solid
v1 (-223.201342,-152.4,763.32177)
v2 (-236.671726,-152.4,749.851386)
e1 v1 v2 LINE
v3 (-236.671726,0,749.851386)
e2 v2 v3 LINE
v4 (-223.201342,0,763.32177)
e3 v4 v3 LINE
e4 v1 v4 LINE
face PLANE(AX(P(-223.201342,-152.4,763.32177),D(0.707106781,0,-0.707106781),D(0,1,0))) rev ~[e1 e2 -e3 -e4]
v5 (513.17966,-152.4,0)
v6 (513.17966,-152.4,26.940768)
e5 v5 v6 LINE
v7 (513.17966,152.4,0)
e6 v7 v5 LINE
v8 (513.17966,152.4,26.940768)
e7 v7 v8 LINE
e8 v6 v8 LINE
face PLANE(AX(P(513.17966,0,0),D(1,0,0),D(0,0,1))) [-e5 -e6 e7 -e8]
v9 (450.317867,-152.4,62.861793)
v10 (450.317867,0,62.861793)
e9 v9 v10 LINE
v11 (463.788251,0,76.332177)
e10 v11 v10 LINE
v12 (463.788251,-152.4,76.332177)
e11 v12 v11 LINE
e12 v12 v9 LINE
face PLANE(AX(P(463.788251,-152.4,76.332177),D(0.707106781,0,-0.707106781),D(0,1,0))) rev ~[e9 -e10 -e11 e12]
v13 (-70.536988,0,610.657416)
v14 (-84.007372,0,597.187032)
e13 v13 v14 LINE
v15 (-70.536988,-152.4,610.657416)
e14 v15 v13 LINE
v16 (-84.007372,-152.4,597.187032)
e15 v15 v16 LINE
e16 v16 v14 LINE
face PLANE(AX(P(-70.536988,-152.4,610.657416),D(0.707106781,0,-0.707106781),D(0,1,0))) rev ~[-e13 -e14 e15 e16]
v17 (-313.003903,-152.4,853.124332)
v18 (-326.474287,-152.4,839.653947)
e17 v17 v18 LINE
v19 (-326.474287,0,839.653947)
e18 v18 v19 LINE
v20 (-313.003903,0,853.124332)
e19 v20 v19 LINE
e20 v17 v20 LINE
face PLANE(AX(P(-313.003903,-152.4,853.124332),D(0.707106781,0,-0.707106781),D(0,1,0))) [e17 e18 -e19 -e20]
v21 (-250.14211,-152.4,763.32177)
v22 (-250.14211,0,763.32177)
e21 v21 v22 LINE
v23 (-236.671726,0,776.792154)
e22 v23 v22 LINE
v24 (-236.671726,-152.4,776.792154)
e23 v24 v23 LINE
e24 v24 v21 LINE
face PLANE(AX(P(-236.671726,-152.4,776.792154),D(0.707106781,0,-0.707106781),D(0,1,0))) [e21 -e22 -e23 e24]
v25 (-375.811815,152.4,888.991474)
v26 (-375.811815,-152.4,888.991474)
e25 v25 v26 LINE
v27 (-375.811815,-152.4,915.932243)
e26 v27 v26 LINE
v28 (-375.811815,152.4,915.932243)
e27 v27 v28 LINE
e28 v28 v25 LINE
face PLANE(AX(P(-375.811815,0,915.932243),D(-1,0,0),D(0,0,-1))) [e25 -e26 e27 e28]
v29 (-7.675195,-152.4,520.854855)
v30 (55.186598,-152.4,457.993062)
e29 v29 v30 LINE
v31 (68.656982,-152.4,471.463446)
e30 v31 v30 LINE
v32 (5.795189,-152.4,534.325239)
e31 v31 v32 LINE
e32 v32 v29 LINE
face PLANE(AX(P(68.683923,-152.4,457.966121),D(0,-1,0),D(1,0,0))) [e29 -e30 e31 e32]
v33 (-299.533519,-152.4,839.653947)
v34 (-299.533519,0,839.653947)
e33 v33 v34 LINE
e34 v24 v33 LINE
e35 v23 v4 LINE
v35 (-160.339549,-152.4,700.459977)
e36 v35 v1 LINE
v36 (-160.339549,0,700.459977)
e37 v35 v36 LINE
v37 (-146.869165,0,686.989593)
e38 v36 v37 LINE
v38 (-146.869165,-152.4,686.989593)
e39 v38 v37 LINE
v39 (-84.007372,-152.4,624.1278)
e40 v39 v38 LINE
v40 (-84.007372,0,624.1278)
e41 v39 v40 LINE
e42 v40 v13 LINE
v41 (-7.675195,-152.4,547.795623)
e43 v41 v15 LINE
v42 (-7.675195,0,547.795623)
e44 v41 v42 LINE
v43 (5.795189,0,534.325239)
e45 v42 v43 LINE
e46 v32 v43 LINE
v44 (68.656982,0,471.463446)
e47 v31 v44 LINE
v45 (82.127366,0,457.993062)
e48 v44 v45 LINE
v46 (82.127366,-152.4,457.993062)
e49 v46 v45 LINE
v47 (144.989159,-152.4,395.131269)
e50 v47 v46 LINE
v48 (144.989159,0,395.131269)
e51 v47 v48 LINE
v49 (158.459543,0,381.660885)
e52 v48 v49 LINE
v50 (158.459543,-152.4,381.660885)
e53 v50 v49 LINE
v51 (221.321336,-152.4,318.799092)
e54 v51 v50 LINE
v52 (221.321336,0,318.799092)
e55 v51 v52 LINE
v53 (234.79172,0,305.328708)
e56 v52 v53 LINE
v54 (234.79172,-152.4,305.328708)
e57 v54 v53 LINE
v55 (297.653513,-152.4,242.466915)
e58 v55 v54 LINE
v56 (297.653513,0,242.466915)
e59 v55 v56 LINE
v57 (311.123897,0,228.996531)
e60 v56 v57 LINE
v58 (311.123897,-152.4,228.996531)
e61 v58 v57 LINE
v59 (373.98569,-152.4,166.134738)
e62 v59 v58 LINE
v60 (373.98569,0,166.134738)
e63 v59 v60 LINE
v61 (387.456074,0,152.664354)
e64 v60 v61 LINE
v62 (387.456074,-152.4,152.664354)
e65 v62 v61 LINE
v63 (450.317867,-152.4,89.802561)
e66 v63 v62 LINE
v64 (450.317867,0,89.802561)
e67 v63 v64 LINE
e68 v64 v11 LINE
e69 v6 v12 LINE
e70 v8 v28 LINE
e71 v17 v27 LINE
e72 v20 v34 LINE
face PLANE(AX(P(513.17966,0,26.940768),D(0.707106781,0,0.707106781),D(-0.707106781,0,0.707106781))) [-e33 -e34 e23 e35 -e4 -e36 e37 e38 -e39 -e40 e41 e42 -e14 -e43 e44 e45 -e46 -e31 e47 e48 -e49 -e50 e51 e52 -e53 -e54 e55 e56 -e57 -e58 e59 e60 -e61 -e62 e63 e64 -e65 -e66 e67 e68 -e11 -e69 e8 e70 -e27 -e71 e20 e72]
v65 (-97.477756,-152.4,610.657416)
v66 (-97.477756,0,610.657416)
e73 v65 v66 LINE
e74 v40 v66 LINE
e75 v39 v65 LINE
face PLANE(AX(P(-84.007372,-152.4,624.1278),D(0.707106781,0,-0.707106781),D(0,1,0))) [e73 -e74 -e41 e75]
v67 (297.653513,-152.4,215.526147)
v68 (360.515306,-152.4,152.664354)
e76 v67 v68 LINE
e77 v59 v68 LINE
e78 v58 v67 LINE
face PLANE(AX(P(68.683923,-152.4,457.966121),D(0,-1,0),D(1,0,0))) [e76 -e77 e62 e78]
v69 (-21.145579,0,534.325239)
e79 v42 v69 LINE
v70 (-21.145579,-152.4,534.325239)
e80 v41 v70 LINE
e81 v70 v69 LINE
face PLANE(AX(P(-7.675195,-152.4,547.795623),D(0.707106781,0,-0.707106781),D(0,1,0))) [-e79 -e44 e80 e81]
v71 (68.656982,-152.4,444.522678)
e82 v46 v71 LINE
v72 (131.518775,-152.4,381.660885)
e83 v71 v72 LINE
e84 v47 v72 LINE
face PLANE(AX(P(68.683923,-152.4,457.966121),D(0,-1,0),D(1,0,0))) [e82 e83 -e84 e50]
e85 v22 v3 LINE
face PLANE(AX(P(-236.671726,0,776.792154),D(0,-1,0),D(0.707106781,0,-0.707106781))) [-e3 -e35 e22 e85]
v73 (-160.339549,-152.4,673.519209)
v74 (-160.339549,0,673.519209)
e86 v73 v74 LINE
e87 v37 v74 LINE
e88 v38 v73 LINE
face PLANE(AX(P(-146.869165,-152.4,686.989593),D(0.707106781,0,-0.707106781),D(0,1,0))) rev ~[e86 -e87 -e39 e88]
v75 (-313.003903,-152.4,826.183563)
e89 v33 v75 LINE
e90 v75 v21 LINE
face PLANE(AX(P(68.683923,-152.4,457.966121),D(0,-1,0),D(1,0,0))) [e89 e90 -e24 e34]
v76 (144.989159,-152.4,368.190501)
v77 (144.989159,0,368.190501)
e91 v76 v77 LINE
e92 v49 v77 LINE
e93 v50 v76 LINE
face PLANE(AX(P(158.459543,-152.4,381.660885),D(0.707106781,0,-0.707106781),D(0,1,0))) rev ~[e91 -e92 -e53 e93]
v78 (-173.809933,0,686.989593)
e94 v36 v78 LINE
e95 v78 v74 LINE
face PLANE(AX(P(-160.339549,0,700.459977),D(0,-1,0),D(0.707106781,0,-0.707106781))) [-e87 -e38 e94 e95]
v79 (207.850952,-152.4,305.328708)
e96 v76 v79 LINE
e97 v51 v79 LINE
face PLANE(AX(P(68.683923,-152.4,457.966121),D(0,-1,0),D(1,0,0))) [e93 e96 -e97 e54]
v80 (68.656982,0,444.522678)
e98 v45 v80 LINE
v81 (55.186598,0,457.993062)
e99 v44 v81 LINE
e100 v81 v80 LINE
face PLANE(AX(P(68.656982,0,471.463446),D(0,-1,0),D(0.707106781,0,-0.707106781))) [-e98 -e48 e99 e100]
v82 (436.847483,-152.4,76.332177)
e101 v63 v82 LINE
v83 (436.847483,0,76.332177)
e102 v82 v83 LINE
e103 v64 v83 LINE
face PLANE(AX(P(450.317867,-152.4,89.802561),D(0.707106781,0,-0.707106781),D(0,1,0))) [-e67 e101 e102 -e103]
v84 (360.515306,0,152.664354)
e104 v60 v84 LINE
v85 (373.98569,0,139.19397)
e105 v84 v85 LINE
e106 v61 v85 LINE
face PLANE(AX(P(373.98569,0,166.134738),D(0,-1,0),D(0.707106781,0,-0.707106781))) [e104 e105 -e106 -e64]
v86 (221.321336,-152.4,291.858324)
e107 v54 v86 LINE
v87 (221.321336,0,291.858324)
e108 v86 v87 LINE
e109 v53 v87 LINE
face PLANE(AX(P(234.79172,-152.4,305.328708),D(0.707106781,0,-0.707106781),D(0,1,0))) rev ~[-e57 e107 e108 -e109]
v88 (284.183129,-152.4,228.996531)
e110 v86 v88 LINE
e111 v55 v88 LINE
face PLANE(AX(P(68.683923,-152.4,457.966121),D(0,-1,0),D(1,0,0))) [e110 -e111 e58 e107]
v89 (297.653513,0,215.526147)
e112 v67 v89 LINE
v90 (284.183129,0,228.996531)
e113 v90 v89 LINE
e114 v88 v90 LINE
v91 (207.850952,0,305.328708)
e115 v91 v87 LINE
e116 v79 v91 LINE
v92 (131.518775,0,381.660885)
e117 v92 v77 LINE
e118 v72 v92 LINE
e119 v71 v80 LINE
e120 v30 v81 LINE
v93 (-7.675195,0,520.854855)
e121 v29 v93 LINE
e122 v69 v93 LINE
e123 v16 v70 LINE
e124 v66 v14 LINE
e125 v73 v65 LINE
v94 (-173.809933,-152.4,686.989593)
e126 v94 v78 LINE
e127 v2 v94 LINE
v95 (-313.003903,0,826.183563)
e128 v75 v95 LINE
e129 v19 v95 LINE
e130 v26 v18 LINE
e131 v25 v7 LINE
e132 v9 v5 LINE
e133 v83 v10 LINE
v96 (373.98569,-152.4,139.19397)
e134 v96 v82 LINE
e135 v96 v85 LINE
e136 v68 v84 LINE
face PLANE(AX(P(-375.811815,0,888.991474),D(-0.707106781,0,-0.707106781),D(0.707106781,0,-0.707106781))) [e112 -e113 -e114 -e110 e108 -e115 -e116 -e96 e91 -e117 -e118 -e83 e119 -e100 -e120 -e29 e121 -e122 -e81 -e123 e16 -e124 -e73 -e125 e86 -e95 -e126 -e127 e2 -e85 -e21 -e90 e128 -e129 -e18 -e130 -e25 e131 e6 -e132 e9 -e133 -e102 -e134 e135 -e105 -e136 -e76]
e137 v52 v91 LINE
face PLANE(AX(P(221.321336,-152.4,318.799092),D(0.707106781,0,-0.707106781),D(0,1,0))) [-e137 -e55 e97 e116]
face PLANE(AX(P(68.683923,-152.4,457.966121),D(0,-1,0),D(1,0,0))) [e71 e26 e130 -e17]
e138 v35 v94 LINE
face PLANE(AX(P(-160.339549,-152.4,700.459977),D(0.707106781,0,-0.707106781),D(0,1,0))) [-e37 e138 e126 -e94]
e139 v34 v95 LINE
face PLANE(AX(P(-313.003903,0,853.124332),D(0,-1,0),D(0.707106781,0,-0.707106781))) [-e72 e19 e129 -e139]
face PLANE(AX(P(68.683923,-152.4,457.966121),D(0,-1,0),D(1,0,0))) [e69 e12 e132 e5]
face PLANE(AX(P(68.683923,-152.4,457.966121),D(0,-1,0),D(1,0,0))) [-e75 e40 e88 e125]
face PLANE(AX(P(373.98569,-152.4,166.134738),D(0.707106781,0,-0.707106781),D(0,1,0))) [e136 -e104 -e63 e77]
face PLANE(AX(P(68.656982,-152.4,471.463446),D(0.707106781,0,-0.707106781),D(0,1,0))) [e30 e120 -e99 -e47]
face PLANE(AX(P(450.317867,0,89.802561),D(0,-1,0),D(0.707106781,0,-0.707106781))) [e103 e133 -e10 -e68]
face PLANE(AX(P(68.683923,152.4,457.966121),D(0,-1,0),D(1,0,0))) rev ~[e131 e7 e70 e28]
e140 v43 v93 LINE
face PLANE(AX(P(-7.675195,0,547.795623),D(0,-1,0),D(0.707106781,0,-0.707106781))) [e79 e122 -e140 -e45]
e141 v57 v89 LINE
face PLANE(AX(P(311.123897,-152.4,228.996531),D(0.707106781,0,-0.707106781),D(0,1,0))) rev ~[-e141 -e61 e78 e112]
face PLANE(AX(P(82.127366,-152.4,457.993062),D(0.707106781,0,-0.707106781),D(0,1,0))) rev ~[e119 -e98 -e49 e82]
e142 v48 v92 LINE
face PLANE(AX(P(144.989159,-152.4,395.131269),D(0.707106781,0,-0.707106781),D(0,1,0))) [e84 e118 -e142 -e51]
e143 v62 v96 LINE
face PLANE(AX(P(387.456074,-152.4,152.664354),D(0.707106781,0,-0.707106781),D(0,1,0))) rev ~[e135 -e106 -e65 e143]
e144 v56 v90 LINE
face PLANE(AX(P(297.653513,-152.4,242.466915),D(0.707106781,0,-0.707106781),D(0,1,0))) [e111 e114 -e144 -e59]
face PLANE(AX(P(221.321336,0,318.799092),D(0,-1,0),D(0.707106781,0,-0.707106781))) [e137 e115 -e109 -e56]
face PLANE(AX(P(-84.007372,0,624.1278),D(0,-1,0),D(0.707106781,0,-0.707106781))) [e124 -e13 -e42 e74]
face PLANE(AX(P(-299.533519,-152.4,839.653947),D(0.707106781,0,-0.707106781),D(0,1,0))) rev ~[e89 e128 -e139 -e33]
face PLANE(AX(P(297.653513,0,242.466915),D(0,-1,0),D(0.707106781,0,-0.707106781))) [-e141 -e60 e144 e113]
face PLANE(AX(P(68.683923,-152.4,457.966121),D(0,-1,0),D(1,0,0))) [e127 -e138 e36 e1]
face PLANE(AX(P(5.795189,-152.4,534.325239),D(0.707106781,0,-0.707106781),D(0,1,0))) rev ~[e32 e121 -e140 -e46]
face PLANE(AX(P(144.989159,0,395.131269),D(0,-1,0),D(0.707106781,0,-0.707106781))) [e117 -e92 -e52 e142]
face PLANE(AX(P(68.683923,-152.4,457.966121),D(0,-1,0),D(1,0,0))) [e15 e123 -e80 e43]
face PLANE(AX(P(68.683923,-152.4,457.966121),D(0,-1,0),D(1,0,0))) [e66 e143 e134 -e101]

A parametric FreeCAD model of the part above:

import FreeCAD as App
import Part
import Sketcher

V = App.Vector
Q = App.Units.Quantity


def add_polygon(sketch, points):
    """Adds a closed chain of lines whose ends are joined by coincident constraints."""
    first, n = sketch.GeometryCount, len(points)
    for a, b in zip(points, points[1:] + points[:1]):
        sketch.addGeometry(Part.LineSegment(App.Vector(*a, 0), App.Vector(*b, 0)), False)
    for i in range(n):
        sketch.addConstraint(Sketcher.Constraint("Coincident", first + i, 2, first + (i + 1) % n, 1))

doc = App.newDocument("Part")
body = doc.addObject("PartDesign::Body", "Body")

# Sketch on XZ plane
sketch1 = body.newObject("Sketcher::SketchObject", "Sketch")
sketch1.AttachmentSupport = (doc.getObject("XZ_Plane"), [""])
sketch1.MapMode = "FlatFace"
add_polygon(sketch1, [(-375.811815, 915.932243), (-375.811815, 888.991474), (513.17966, 0), (513.17966, 26.940768)])  # lines 0-3
sketch1.addConstraint(Sketcher.Constraint("Vertical", 0))
sketch1.addConstraint(Sketcher.Constraint("Vertical", 2))
sketch1.addConstraint(Sketcher.Constraint("PointOnObject", 1, 2, -1))
sketch1.addConstraint(Sketcher.Constraint("Parallel", 1, 3))
sketch1.addConstraint(Sketcher.Constraint("Angle", 1, Q("-45 deg")))
sketch1.addConstraint(Sketcher.Constraint("Distance", 1, Q("49.497 in")))
sketch1.addConstraint(Sketcher.Constraint("DistanceY", 0, 2, 0, 1, Q("26.940768 mm")))
sketch1.addConstraint(Sketcher.Constraint("DistanceX", -1, 1, 1, 2, Q("513.17966 mm")))
pad1 = body.newObject("PartDesign::Pad", "Pad")
pad1.Profile = sketch1
pad1.Length = Q("12 in")
pad1.Midplane = True

# Sketch on an angled plane
sketch2 = body.newObject("Sketcher::SketchObject", "Sketch001")
sketch2.Placement = App.Placement(V(270.060214, 0, 270.060214), App.Rotation(V(0.707106781, 0, -0.707106781), V(0, 0.999999999, 0), V(0.707106781, 0, 0.707106781), "ZXY"))
add_polygon(sketch2, [(254.922817, 0), (254.922817, -152.4), (273.972817, -152.4), (273.972817, 0)])  # lines 0-3
add_polygon(sketch2, [(146.972817, 0), (146.972817, -152.4), (166.022817, -152.4), (166.022817, 0)])  # lines 4-7
add_polygon(sketch2, [(39.022817, 0), (39.022817, -152.4), (58.072817, -152.4), (58.072817, 0)])  # lines 8-11
add_polygon(sketch2, [(-68.927183, 0), (-68.927183, -152.4), (-49.877183, -152.4), (-49.877183, 0)])  # lines 12-15
add_polygon(sketch2, [(-176.877182, 0), (-176.877182, -152.4), (-157.827182, -152.4), (-157.827182, 0)])  # lines 16-19
add_polygon(sketch2, [(-284.827182, 0), (-284.827182, -152.4), (-265.777182, -152.4), (-265.777182, 0)])  # lines 20-23
add_polygon(sketch2, [(-392.777182, 0), (-392.777182, -152.4), (-373.727182, -152.4), (-373.727182, 0)])  # lines 24-27
add_polygon(sketch2, [(-500.727182, 0), (-500.727182, -152.4), (-481.677182, -152.4), (-481.677182, 0)])  # lines 28-31
add_polygon(sketch2, [(-608.677182, 0), (-608.677182, -152.4), (-589.627182, -152.4), (-589.627182, 0)])  # lines 32-35
add_polygon(sketch2, [(-716.627182, 0), (-716.627182, -152.4), (-697.577182, -152.4), (-697.577182, 0)])  # lines 36-39
add_polygon(sketch2, [(-824.577182, 0), (-824.577182, -152.4), (-805.527182, -152.4), (-805.527182, 0)])  # lines 40-43
sketch2.addConstraint(Sketcher.Constraint("Vertical", 0))
sketch2.addConstraint(Sketcher.Constraint("Horizontal", 1))
sketch2.addConstraint(Sketcher.Constraint("Vertical", 2))
sketch2.addConstraint(Sketcher.Constraint("Horizontal", 3))
sketch2.addConstraint(Sketcher.Constraint("Vertical", 4))
sketch2.addConstraint(Sketcher.Constraint("Horizontal", 5))
sketch2.addConstraint(Sketcher.Constraint("Vertical", 6))
sketch2.addConstraint(Sketcher.Constraint("Horizontal", 7))
sketch2.addConstraint(Sketcher.Constraint("Vertical", 8))
sketch2.addConstraint(Sketcher.Constraint("Horizontal", 9))
sketch2.addConstraint(Sketcher.Constraint("Vertical", 10))
sketch2.addConstraint(Sketcher.Constraint("Horizontal", 11))
sketch2.addConstraint(Sketcher.Constraint("Vertical", 12))
sketch2.addConstraint(Sketcher.Constraint("Horizontal", 13))
sketch2.addConstraint(Sketcher.Constraint("Vertical", 14))
sketch2.addConstraint(Sketcher.Constraint("Horizontal", 15))
sketch2.addConstraint(Sketcher.Constraint("Vertical", 16))
sketch2.addConstraint(Sketcher.Constraint("Horizontal", 17))
sketch2.addConstraint(Sketcher.Constraint("Vertical", 18))
sketch2.addConstraint(Sketcher.Constraint("Horizontal", 19))
sketch2.addConstraint(Sketcher.Constraint("Vertical", 20))
sketch2.addConstraint(Sketcher.Constraint("Horizontal", 21))
sketch2.addConstraint(Sketcher.Constraint("Vertical", 22))
sketch2.addConstraint(Sketcher.Constraint("Horizontal", 23))
sketch2.addConstraint(Sketcher.Constraint("Vertical", 24))
sketch2.addConstraint(Sketcher.Constraint("Horizontal", 25))
sketch2.addConstraint(Sketcher.Constraint("Vertical", 26))
sketch2.addConstraint(Sketcher.Constraint("Horizontal", 27))
sketch2.addConstraint(Sketcher.Constraint("Vertical", 28))
sketch2.addConstraint(Sketcher.Constraint("Horizontal", 29))
sketch2.addConstraint(Sketcher.Constraint("Vertical", 30))
sketch2.addConstraint(Sketcher.Constraint("Horizontal", 31))
sketch2.addConstraint(Sketcher.Constraint("Vertical", 32))
sketch2.addConstraint(Sketcher.Constraint("Horizontal", 33))
sketch2.addConstraint(Sketcher.Constraint("Vertical", 34))
sketch2.addConstraint(Sketcher.Constraint("Horizontal", 35))
sketch2.addConstraint(Sketcher.Constraint("Vertical", 36))
sketch2.addConstraint(Sketcher.Constraint("Horizontal", 37))
sketch2.addConstraint(Sketcher.Constraint("Vertical", 38))
sketch2.addConstraint(Sketcher.Constraint("Horizontal", 39))
sketch2.addConstraint(Sketcher.Constraint("Vertical", 40))
sketch2.addConstraint(Sketcher.Constraint("Horizontal", 41))
sketch2.addConstraint(Sketcher.Constraint("Vertical", 42))
sketch2.addConstraint(Sketcher.Constraint("Horizontal", 43))
sketch2.addConstraint(Sketcher.Constraint("PointOnObject", 2, 2, -1))
sketch2.addConstraint(Sketcher.Constraint("PointOnObject", 6, 2, -1))
sketch2.addConstraint(Sketcher.Constraint("PointOnObject", 10, 2, -1))
sketch2.addConstraint(Sketcher.Constraint("PointOnObject", 14, 2, -1))
sketch2.addConstraint(Sketcher.Constraint("PointOnObject", 18, 2, -1))
sketch2.addConstraint(Sketcher.Constraint("PointOnObject", 22, 2, -1))
sketch2.addConstraint(Sketcher.Constraint("PointOnObject", 26, 2, -1))
sketch2.addConstraint(Sketcher.Constraint("PointOnObject", 30, 2, -1))
sketch2.addConstraint(Sketcher.Constraint("PointOnObject", 34, 2, -1))
sketch2.addConstraint(Sketcher.Constraint("PointOnObject", 38, 2, -1))
sketch2.addConstraint(Sketcher.Constraint("PointOnObject", 42, 2, -1))
sketch2.addConstraint(Sketcher.Constraint("Horizontal", 1, 2, 4, 2))
sketch2.addConstraint(Sketcher.Constraint("Horizontal", 5, 2, 8, 2))
sketch2.addConstraint(Sketcher.Constraint("Horizontal", 9, 2, 12, 2))
sketch2.addConstraint(Sketcher.Constraint("Horizontal", 13, 2, 16, 2))
sketch2.addConstraint(Sketcher.Constraint("Horizontal", 17, 2, 20, 2))
sketch2.addConstraint(Sketcher.Constraint("Horizontal", 21, 2, 24, 2))
sketch2.addConstraint(Sketcher.Constraint("Horizontal", 25, 2, 28, 2))
sketch2.addConstraint(Sketcher.Constraint("Horizontal", 29, 2, 32, 2))
sketch2.addConstraint(Sketcher.Constraint("Horizontal", 33, 2, 36, 2))
sketch2.addConstraint(Sketcher.Constraint("Horizontal", 37, 2, 40, 2))
sketch2.addConstraint(Sketcher.Constraint("Equal", 3, 5))
sketch2.addConstraint(Sketcher.Constraint("Equal", 7, 9))
sketch2.addConstraint(Sketcher.Constraint("Equal", 11, 13))
sketch2.addConstraint(Sketcher.Constraint("Equal", 15, 17))
sketch2.addConstraint(Sketcher.Constraint("Equal", 19, 21))
sketch2.addConstraint(Sketcher.Constraint("Equal", 23, 25))
sketch2.addConstraint(Sketcher.Constraint("Equal", 27, 29))
sketch2.addConstraint(Sketcher.Constraint("Equal", 31, 33))
sketch2.addConstraint(Sketcher.Constraint("Equal", 35, 37))
sketch2.addConstraint(Sketcher.Constraint("Equal", 39, 41))
sketch2.addConstraint(Sketcher.Constraint("DistanceY", 0, 2, 0, 1, Q("6 in")))
sketch2.addConstraint(Sketcher.Constraint("DistanceX", 4, 2, 1, 2, Q("5 in")))
sketch2.addConstraint(Sketcher.Constraint("DistanceX", 8, 2, 5, 2, Q("5 in")))
sketch2.addConstraint(Sketcher.Constraint("DistanceX", 12, 2, 9, 2, Q("5 in")))
sketch2.addConstraint(Sketcher.Constraint("DistanceX", 16, 2, 13, 2, Q("5 in")))
sketch2.addConstraint(Sketcher.Constraint("DistanceX", 20, 2, 17, 2, Q("5 in")))
sketch2.addConstraint(Sketcher.Constraint("DistanceX", 24, 2, 21, 2, Q("5 in")))
sketch2.addConstraint(Sketcher.Constraint("DistanceX", 28, 2, 25, 2, Q("5 in")))
sketch2.addConstraint(Sketcher.Constraint("DistanceX", 32, 2, 29, 2, Q("5 in")))
sketch2.addConstraint(Sketcher.Constraint("DistanceX", 36, 2, 33, 2, Q("5 in")))
sketch2.addConstraint(Sketcher.Constraint("DistanceX", 40, 2, 37, 2, Q("5 in")))
sketch2.addConstraint(Sketcher.Constraint("DistanceX", 1, 1, 1, 2, Q("0.75 in")))
sketch2.addConstraint(Sketcher.Constraint("DistanceX", -1, 1, 0, 2, Q("254.922817 mm")))
pocket1 = body.newObject("PartDesign::Pocket", "Pocket")
pocket1.Profile = sketch2
pocket1.Length = Q("0.75 in")

doc.recompute()
